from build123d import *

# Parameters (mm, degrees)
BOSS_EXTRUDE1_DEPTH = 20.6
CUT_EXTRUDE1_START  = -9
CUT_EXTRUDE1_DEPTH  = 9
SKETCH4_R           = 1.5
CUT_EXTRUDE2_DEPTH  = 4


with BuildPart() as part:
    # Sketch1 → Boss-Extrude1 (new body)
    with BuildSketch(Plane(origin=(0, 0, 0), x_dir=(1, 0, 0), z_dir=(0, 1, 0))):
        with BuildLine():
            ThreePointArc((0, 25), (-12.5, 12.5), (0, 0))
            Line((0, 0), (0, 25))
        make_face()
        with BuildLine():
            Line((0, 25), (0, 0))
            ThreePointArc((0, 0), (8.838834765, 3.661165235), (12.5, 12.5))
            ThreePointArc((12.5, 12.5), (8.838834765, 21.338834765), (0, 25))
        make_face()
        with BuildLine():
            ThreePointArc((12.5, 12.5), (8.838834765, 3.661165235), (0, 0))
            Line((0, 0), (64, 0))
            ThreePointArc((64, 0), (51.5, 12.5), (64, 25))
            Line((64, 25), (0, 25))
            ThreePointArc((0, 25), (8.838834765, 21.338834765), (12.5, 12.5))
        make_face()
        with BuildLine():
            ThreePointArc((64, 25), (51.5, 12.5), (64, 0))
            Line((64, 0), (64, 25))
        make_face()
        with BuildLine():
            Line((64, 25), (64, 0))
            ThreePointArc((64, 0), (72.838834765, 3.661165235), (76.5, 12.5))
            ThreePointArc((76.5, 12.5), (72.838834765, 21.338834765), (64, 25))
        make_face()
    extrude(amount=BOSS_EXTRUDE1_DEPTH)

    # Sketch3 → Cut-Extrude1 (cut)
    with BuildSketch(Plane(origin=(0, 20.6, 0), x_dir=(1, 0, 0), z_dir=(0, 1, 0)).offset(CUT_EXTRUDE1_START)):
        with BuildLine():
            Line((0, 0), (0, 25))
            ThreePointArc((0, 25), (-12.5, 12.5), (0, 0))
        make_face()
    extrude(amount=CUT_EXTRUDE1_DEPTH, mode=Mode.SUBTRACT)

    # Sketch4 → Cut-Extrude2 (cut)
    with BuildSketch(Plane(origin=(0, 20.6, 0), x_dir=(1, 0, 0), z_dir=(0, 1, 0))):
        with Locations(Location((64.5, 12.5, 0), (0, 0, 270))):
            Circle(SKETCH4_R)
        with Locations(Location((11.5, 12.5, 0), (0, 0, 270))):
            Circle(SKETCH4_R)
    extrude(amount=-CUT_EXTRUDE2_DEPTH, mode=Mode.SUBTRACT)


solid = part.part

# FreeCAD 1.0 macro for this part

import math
import FreeCAD as App
import Part
import Sketcher

V = App.Vector
Q = App.Units.Quantity

doc = App.newDocument("Part")
body = doc.addObject("PartDesign::Body", "Body")

# Sketch on XZ plane
sketch1 = doc.addObject("Sketcher::SketchObject", "Sketch")
body.addObject(sketch1)
sketch1.AttachmentSupport = (doc.XZ_Plane, [""])
sketch1.MapMode = "FlatFace"
sketch1.addGeometry(Part.LineSegment(V(0, 0, 0), V(64, 0, 0)), False)
sketch1.addGeometry(Part.ArcOfCircle(Part.Circle(V(64, -12, 0), V(0, 0, 1), 12), math.radians(0), math.radians(90)), False)
sketch1.addGeometry(Part.ArcOfCircle(Part.Circle(V(64, -13, 0), V(0, 0, 1), 12), math.radians(-90), math.radians(0)), False)
sketch1.addGeometry(Part.LineSegment(V(64, -25, 0), V(0, -25, 0)), False)
sketch1.addGeometry(Part.ArcOfCircle(Part.Circle(V(0, -12, 0), V(0, 0, 1), 12), math.radians(90), math.radians(270)), False)
sketch1.addConstraint(Sketcher.Constraint("Tangent", 0, 2, 1, 2))
sketch1.addConstraint(Sketcher.Constraint("Tangent", 1, 1, 2, 2))
sketch1.addConstraint(Sketcher.Constraint("Tangent", 2, 1, 3, 1))
sketch1.addConstraint(Sketcher.Constraint("Tangent", 3, 2, 4, 2))
sketch1.addConstraint(Sketcher.Constraint("Tangent", 4, 1, 0, 1))
sketch1.addConstraint(Sketcher.Constraint("Horizontal", 0))
sketch1.addConstraint(Sketcher.Constraint("Horizontal", 3))
sketch1.addConstraint(Sketcher.Constraint("Coincident", 4, 1, -1, 1))
sketch1.addConstraint(Sketcher.Constraint("Equal", 1, 2))
sketch1.addConstraint(Sketcher.Constraint("Horizontal", 4, 3, 1, 1))
sketch1.addConstraint(Sketcher.Constraint("Radius", 1, Q("12.5 mm")))
sketch1.addConstraint(Sketcher.Constraint("DistanceX", 0, 1, 0, 2, Q("64 mm")))
pad1 = doc.addObject("PartDesign::Pad", "Pad")
body.addObject(pad1)
pad1.Profile = sketch1
pad1.Length = 20.6
pad1.Reversed = True

# Sketch on XZ plane
sketch2 = doc.addObject("Sketcher::SketchObject", "Sketch001")
body.addObject(sketch2)
sketch2.AttachmentSupport = (doc.XZ_Plane, [""])
sketch2.MapMode = "FlatFace"
sketch2.AttachmentOffset = App.Placement(V(0, 0, -11.6), App.Rotation())
sketch2.addGeometry(Part.LineSegment(V(0, 0, 0), V(0, -25, 0)), False)
sketch2.addGeometry(Part.ArcOfCircle(Part.Circle(V(0, -12, 0), V(0, 0, 1), 12), math.radians(90), math.radians(270)), False)
sketch2.addConstraint(Sketcher.Constraint("Coincident", 0, 1, 1, 1))
sketch2.addConstraint(Sketcher.Constraint("Coincident", 1, 2, 0, 2))
sketch2.addConstraint(Sketcher.Constraint("Vertical", 0))
sketch2.addConstraint(Sketcher.Constraint("Coincident", 0, 1, -1, 1))
sketch2.addConstraint(Sketcher.Constraint("PointOnObject", 1, 3, -2))
sketch2.addConstraint(Sketcher.Constraint("Radius", 1, Q("12.5 mm")))
pocket1 = doc.addObject("PartDesign::Pocket", "Pocket")
body.addObject(pocket1)
pocket1.Profile = sketch2
pocket1.Length = 9

# Sketch on XZ plane
sketch3 = doc.addObject("Sketcher::SketchObject", "Sketch002")
body.addObject(sketch3)
sketch3.AttachmentSupport = (doc.XZ_Plane, [""])
sketch3.MapMode = "FlatFace"
sketch3.AttachmentOffset = App.Placement(V(0, 0, -20.6), App.Rotation())
sketch3.addGeometry(Part.Circle(V(64.5, -12.5, 0), V(0, 0, 1), 1.5), False)
sketch3.addGeometry(Part.Circle(V(11.5, -12.5, 0), V(0, 0, 1), 1.5), False)
sketch3.addConstraint(Sketcher.Constraint("Equal", 0, 1))
sketch3.addConstraint(Sketcher.Constraint("Horizontal", 0, 3, 1, 3))
sketch3.addConstraint(Sketcher.Constraint("Diameter", 0, Q("3 mm")))
sketch3.addConstraint(Sketcher.Constraint("DistanceX", 1, 3, 0, 3, Q("53 mm")))
sketch3.addConstraint(Sketcher.Constraint("DistanceX", -1, 1, 0, 3, Q("64.5 mm")))
sketch3.addConstraint(Sketcher.Constraint("DistanceY", 0, 3, -1, 1, Q("12.5 mm")))
pocket2 = doc.addObject("PartDesign::Pocket", "Pocket001")
body.addObject(pocket2)
pocket2.Profile = sketch3
pocket2.Length = 4
pocket2.Reversed = True

doc.recompute()
